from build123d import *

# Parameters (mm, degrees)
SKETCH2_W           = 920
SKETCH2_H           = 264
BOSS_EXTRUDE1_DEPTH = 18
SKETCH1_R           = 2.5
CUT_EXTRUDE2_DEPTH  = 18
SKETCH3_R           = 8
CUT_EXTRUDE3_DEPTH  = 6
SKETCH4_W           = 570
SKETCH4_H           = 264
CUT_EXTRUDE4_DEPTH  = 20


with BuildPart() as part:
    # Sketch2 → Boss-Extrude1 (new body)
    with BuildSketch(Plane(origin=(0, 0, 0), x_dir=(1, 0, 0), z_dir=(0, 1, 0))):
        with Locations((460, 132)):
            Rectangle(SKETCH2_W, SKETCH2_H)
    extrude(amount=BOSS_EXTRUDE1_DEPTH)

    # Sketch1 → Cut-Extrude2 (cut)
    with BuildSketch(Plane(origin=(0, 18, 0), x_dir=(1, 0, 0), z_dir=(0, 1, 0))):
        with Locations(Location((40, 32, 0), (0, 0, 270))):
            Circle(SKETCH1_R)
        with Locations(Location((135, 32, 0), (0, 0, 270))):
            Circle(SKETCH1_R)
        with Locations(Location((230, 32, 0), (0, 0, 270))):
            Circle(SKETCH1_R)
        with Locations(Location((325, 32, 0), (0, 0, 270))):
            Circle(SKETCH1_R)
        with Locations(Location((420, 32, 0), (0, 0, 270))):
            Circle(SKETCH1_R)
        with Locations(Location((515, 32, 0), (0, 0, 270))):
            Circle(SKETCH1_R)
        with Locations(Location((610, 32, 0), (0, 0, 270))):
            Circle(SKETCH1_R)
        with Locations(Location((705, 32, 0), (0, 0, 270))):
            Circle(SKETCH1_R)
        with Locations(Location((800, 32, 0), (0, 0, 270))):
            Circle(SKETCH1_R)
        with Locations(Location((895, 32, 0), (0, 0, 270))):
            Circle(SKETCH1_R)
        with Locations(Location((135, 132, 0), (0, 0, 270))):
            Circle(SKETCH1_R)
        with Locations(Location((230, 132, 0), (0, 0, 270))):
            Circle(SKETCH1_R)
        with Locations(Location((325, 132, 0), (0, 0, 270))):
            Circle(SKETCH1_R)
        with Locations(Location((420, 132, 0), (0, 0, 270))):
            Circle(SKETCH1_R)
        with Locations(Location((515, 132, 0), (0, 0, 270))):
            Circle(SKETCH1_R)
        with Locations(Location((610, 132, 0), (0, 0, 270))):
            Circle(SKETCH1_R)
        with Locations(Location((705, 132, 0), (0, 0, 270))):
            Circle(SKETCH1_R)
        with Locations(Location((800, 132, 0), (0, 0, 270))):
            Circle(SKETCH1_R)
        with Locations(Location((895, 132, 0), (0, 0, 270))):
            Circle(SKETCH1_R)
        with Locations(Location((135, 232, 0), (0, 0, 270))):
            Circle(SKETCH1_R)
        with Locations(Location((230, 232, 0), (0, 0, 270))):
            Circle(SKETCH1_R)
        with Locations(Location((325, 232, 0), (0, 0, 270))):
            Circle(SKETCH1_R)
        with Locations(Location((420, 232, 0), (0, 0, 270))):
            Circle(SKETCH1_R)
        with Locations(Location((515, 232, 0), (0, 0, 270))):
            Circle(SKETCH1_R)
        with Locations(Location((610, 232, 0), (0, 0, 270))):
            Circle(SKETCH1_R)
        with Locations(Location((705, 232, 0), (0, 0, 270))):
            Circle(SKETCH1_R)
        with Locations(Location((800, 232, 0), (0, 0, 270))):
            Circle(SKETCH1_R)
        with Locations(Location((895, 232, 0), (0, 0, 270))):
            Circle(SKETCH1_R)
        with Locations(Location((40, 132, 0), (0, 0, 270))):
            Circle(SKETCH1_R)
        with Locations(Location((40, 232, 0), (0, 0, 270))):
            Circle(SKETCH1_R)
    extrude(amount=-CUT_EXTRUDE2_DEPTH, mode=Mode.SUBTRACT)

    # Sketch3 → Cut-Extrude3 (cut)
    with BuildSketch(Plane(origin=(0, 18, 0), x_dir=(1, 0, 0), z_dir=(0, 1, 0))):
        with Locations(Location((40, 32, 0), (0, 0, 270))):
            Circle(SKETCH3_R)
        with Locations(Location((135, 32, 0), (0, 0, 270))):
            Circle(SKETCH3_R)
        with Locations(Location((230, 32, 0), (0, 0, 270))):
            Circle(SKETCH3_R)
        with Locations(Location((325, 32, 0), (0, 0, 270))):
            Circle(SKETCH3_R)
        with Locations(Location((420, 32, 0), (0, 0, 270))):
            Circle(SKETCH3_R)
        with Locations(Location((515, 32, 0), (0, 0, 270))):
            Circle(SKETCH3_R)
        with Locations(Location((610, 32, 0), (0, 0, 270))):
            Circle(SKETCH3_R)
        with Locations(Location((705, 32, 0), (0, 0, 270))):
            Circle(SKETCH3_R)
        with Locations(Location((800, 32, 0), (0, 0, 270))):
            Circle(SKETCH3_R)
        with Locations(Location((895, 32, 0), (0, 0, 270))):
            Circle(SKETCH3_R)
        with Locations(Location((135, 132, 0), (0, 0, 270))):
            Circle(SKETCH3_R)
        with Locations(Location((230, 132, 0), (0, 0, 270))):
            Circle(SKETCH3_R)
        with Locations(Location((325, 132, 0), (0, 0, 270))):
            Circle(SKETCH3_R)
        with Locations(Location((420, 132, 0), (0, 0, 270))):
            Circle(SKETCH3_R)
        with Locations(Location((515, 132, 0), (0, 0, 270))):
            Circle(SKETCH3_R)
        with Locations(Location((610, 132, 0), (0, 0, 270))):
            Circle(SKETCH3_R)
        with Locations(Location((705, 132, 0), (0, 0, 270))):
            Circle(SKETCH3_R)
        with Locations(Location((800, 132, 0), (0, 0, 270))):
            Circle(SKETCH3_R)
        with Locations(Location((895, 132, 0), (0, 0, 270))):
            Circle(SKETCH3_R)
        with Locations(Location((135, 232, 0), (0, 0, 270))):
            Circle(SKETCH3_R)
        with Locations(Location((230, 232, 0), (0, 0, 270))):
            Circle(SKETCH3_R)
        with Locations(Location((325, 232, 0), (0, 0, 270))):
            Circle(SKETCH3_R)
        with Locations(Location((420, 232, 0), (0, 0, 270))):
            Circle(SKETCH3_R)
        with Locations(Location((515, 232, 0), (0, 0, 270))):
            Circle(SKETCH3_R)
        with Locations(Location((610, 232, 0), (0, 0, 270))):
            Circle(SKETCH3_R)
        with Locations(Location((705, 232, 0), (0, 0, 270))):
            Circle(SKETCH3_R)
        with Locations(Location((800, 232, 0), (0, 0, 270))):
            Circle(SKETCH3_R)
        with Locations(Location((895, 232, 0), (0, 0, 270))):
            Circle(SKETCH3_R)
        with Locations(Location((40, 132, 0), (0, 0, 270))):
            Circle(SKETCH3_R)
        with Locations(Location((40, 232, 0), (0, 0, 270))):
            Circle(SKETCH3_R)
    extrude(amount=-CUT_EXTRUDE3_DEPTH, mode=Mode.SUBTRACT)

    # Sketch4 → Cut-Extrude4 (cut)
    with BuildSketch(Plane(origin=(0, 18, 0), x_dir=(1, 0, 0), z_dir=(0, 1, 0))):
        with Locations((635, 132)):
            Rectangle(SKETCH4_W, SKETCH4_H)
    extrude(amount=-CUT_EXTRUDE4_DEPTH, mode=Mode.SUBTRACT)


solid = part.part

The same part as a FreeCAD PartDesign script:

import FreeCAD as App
import Part
import Sketcher

V = App.Vector
Q = App.Units.Quantity


def add_polygon(sketch, points):
    """Adds a closed chain of lines whose ends are joined by coincident constraints."""
    first, n = sketch.GeometryCount, len(points)
    for a, b in zip(points, points[1:] + points[:1]):
        sketch.addGeometry(Part.LineSegment(App.Vector(*a, 0), App.Vector(*b, 0)), False)
    for i in range(n):
        sketch.addConstraint(Sketcher.Constraint("Coincident", first + i, 2, first + (i + 1) % n, 1))

doc = App.newDocument("Part")
body = doc.addObject("PartDesign::Body", "Body")

sketch1 = body.newObject("Sketcher::SketchObject", "Sketch")
sketch1.AttachmentSupport = (doc.getObject("XZ_Plane"), [""])
sketch1.MapMode = "FlatFace"
add_polygon(sketch1, [(0, -264), (0, 0), (920, 0), (920, -264)])
sketch1.addConstraint(Sketcher.Constraint("Vertical", 0))
sketch1.addConstraint(Sketcher.Constraint("Horizontal", 1))
sketch1.addConstraint(Sketcher.Constraint("Vertical", 2))
sketch1.addConstraint(Sketcher.Constraint("Horizontal", 3))
sketch1.addConstraint(Sketcher.Constraint("Coincident", 0, 2, -1, 1))
sketch1.addConstraint(Sketcher.Constraint("DistanceX", 1, 1, 1, 2, Q("920 mm")))
sketch1.addConstraint(Sketcher.Constraint("DistanceY", 0, 1, 0, 2, Q("264 mm")))
pad1 = body.newObject("PartDesign::Pad", "Pad")
pad1.Profile = sketch1
pad1.Length = 18
pad1.Reversed = True

sketch2 = body.newObject("Sketcher::SketchObject", "Sketch001")
sketch2.AttachmentSupport = (doc.getObject("XZ_Plane"), [""])
sketch2.MapMode = "FlatFace"
sketch2.AttachmentOffset = App.Placement(V(0, 0, -18), App.Rotation())
sketch2.addGeometry(Part.Circle(V(40, -32, 0), V(0, 0, 1), 2.5), False)
sketch2.addGeometry(Part.Circle(V(135, -32, 0), V(0, 0, 1), 2.5), False)
sketch2.addGeometry(Part.Circle(V(230, -32, 0), V(0, 0, 1), 2.5), False)
sketch2.addGeometry(Part.Circle(V(325, -32, 0), V(0, 0, 1), 2.5), False)
sketch2.addGeometry(Part.Circle(V(420, -32, 0), V(0, 0, 1), 2.5), False)
sketch2.addGeometry(Part.Circle(V(515, -32, 0), V(0, 0, 1), 2.5), False)
sketch2.addGeometry(Part.Circle(V(610, -32, 0), V(0, 0, 1), 2.5), False)
sketch2.addGeometry(Part.Circle(V(705, -32, 0), V(0, 0, 1), 2.5), False)
sketch2.addGeometry(Part.Circle(V(800, -32, 0), V(0, 0, 1), 2.5), False)
sketch2.addGeometry(Part.Circle(V(895, -32, 0), V(0, 0, 1), 2.5), False)
sketch2.addGeometry(Part.Circle(V(135, -132, 0), V(0, 0, 1), 2.5), False)
sketch2.addGeometry(Part.Circle(V(230, -132, 0), V(0, 0, 1), 2.5), False)
sketch2.addGeometry(Part.Circle(V(325, -132, 0), V(0, 0, 1), 2.5), False)
sketch2.addGeometry(Part.Circle(V(420, -132, 0), V(0, 0, 1), 2.5), False)
sketch2.addGeometry(Part.Circle(V(515, -132, 0), V(0, 0, 1), 2.5), False)
sketch2.addGeometry(Part.Circle(V(610, -132, 0), V(0, 0, 1), 2.5), False)
sketch2.addGeometry(Part.Circle(V(705, -132, 0), V(0, 0, 1), 2.5), False)
sketch2.addGeometry(Part.Circle(V(800, -132, 0), V(0, 0, 1), 2.5), False)
sketch2.addGeometry(Part.Circle(V(895, -132, 0), V(0, 0, 1), 2.5), False)
sketch2.addGeometry(Part.Circle(V(135, -232, 0), V(0, 0, 1), 2.5), False)
sketch2.addGeometry(Part.Circle(V(230, -232, 0), V(0, 0, 1), 2.5), False)
sketch2.addGeometry(Part.Circle(V(325, -232, 0), V(0, 0, 1), 2.5), False)
sketch2.addGeometry(Part.Circle(V(420, -232, 0), V(0, 0, 1), 2.5), False)
sketch2.addGeometry(Part.Circle(V(515, -232, 0), V(0, 0, 1), 2.5), False)
sketch2.addGeometry(Part.Circle(V(610, -232, 0), V(0, 0, 1), 2.5), False)
sketch2.addGeometry(Part.Circle(V(705, -232, 0), V(0, 0, 1), 2.5), False)
sketch2.addGeometry(Part.Circle(V(800, -232, 0), V(0, 0, 1), 2.5), False)
sketch2.addGeometry(Part.Circle(V(895, -232, 0), V(0, 0, 1), 2.5), False)
sketch2.addGeometry(Part.Circle(V(40, -132, 0), V(0, 0, 1), 2.5), False)
sketch2.addGeometry(Part.Circle(V(40, -232, 0), V(0, 0, 1), 2.5), False)
sketch2.addConstraint(Sketcher.Constraint("Equal", 0, 1))
sketch2.addConstraint(Sketcher.Constraint("Equal", 1, 2))
sketch2.addConstraint(Sketcher.Constraint("Equal", 2, 3))
sketch2.addConstraint(Sketcher.Constraint("Equal", 3, 4))
sketch2.addConstraint(Sketcher.Constraint("Equal", 4, 5))
sketch2.addConstraint(Sketcher.Constraint("Equal", 5, 6))
sketch2.addConstraint(Sketcher.Constraint("Equal", 6, 7))
sketch2.addConstraint(Sketcher.Constraint("Equal", 7, 8))
sketch2.addConstraint(Sketcher.Constraint("Equal", 8, 9))
sketch2.addConstraint(Sketcher.Constraint("Equal", 9, 10))
sketch2.addConstraint(Sketcher.Constraint("Equal", 10, 11))
sketch2.addConstraint(Sketcher.Constraint("Equal", 11, 12))
sketch2.addConstraint(Sketcher.Constraint("Equal", 12, 13))
sketch2.addConstraint(Sketcher.Constraint("Equal", 13, 14))
sketch2.addConstraint(Sketcher.Constraint("Equal", 14, 15))
sketch2.addConstraint(Sketcher.Constraint("Equal", 15, 16))
sketch2.addConstraint(Sketcher.Constraint("Equal", 16, 17))
sketch2.addConstraint(Sketcher.Constraint("Equal", 17, 18))
sketch2.addConstraint(Sketcher.Constraint("Equal", 18, 19))
sketch2.addConstraint(Sketcher.Constraint("Equal", 19, 20))
sketch2.addConstraint(Sketcher.Constraint("Equal", 20, 21))
sketch2.addConstraint(Sketcher.Constraint("Equal", 21, 22))
sketch2.addConstraint(Sketcher.Constraint("Equal", 22, 23))
sketch2.addConstraint(Sketcher.Constraint("Equal", 23, 24))
sketch2.addConstraint(Sketcher.Constraint("Equal", 24, 25))
sketch2.addConstraint(Sketcher.Constraint("Equal", 25, 26))
sketch2.addConstraint(Sketcher.Constraint("Equal", 26, 27))
sketch2.addConstraint(Sketcher.Constraint("Equal", 27, 28))
sketch2.addConstraint(Sketcher.Constraint("Equal", 28, 29))
sketch2.addConstraint(Sketcher.Constraint("Horizontal", 0, 3, 1, 3))
sketch2.addConstraint(Sketcher.Constraint("Horizontal", 1, 3, 2, 3))
sketch2.addConstraint(Sketcher.Constraint("Horizontal", 2, 3, 3, 3))
sketch2.addConstraint(Sketcher.Constraint("Horizontal", 3, 3, 4, 3))
sketch2.addConstraint(Sketcher.Constraint("Horizontal", 4, 3, 5, 3))
sketch2.addConstraint(Sketcher.Constraint("Horizontal", 5, 3, 6, 3))
sketch2.addConstraint(Sketcher.Constraint("Horizontal", 6, 3, 7, 3))
sketch2.addConstraint(Sketcher.Constraint("Horizontal", 7, 3, 8, 3))
sketch2.addConstraint(Sketcher.Constraint("Horizontal", 8, 3, 9, 3))
sketch2.addConstraint(Sketcher.Constraint("Horizontal", 10, 3, 11, 3))
sketch2.addConstraint(Sketcher.Constraint("Horizontal", 11, 3, 12, 3))
sketch2.addConstraint(Sketcher.Constraint("Horizontal", 12, 3, 13, 3))
sketch2.addConstraint(Sketcher.Constraint("Horizontal", 13, 3, 14, 3))
sketch2.addConstraint(Sketcher.Constraint("Horizontal", 14, 3, 15, 3))
sketch2.addConstraint(Sketcher.Constraint("Horizontal", 15, 3, 16, 3))
sketch2.addConstraint(Sketcher.Constraint("Horizontal", 16, 3, 17, 3))
sketch2.addConstraint(Sketcher.Constraint("Horizontal", 17, 3, 18, 3))
sketch2.addConstraint(Sketcher.Constraint("Horizontal", 19, 3, 20, 3))
sketch2.addConstraint(Sketcher.Constraint("Horizontal", 20, 3, 21, 3))
sketch2.addConstraint(Sketcher.Constraint("Horizontal", 21, 3, 22, 3))
sketch2.addConstraint(Sketcher.Constraint("Horizontal", 22, 3, 23, 3))
sketch2.addConstraint(Sketcher.Constraint("Horizontal", 23, 3, 24, 3))
sketch2.addConstraint(Sketcher.Constraint("Horizontal", 24, 3, 25, 3))
sketch2.addConstraint(Sketcher.Constraint("Horizontal", 25, 3, 26, 3))
sketch2.addConstraint(Sketcher.Constraint("Horizontal", 26, 3, 27, 3))
sketch2.addConstraint(Sketcher.Constraint("Horizontal", 18, 3, 28, 3))
sketch2.addConstraint(Sketcher.Constraint("Horizontal", 27, 3, 29, 3))
sketch2.addConstraint(Sketcher.Constraint("Vertical", 1, 3, 10, 3))
sketch2.addConstraint(Sketcher.Constraint("Vertical", 2, 3, 11, 3))
sketch2.addConstraint(Sketcher.Constraint("Vertical", 3, 3, 12, 3))
sketch2.addConstraint(Sketcher.Constraint("Vertical", 4, 3, 13, 3))
sketch2.addConstraint(Sketcher.Constraint("Vertical", 5, 3, 14, 3))
sketch2.addConstraint(Sketcher.Constraint("Vertical", 6, 3, 15, 3))
sketch2.addConstraint(Sketcher.Constraint("Vertical", 7, 3, 16, 3))
sketch2.addConstraint(Sketcher.Constraint("Vertical", 8, 3, 17, 3))
sketch2.addConstraint(Sketcher.Constraint("Vertical", 9, 3, 18, 3))
sketch2.addConstraint(Sketcher.Constraint("Vertical", 10, 3, 19, 3))
sketch2.addConstraint(Sketcher.Constraint("Vertical", 11, 3, 20, 3))
sketch2.addConstraint(Sketcher.Constraint("Vertical", 12, 3, 21, 3))
sketch2.addConstraint(Sketcher.Constraint("Vertical", 13, 3, 22, 3))
sketch2.addConstraint(Sketcher.Constraint("Vertical", 14, 3, 23, 3))
sketch2.addConstraint(Sketcher.Constraint("Vertical", 15, 3, 24, 3))
sketch2.addConstraint(Sketcher.Constraint("Vertical", 16, 3, 25, 3))
sketch2.addConstraint(Sketcher.Constraint("Vertical", 17, 3, 26, 3))
sketch2.addConstraint(Sketcher.Constraint("Vertical", 18, 3, 27, 3))
sketch2.addConstraint(Sketcher.Constraint("Vertical", 0, 3, 28, 3))
sketch2.addConstraint(Sketcher.Constraint("Vertical", 28, 3, 29, 3))
sketch2.addConstraint(Sketcher.Constraint("Diameter", 0, Q("5 mm")))
sketch2.addConstraint(Sketcher.Constraint("DistanceX", -1, 1, 0, 3, Q("40 mm")))
sketch2.addConstraint(Sketcher.Constraint("DistanceY", 0, 3, -1, 1, Q("32 mm")))
sketch2.addConstraint(Sketcher.Constraint("DistanceX", -1, 1, 1, 3, Q("135 mm")))
sketch2.addConstraint(Sketcher.Constraint("DistanceX", -1, 1, 2, 3, Q("230 mm")))
sketch2.addConstraint(Sketcher.Constraint("DistanceX", -1, 1, 3, 3, Q("325 mm")))
sketch2.addConstraint(Sketcher.Constraint("DistanceX", -1, 1, 4, 3, Q("420 mm")))
sketch2.addConstraint(Sketcher.Constraint("DistanceX", -1, 1, 5, 3, Q("515 mm")))
sketch2.addConstraint(Sketcher.Constraint("DistanceX", -1, 1, 6, 3, Q("610 mm")))
sketch2.addConstraint(Sketcher.Constraint("DistanceX", -1, 1, 7, 3, Q("705 mm")))
sketch2.addConstraint(Sketcher.Constraint("DistanceX", -1, 1, 8, 3, Q("800 mm")))
sketch2.addConstraint(Sketcher.Constraint("DistanceX", -1, 1, 9, 3, Q("895 mm")))
sketch2.addConstraint(Sketcher.Constraint("DistanceY", 10, 3, -1, 1, Q("132 mm")))
sketch2.addConstraint(Sketcher.Constraint("DistanceY", 19, 3, -1, 1, Q("232 mm")))
pocket1 = body.newObject("PartDesign::Pocket", "Pocket")
pocket1.Profile = sketch2
pocket1.Length = 18
pocket1.Reversed = True

sketch3 = body.newObject("Sketcher::SketchObject", "Sketch002")
sketch3.AttachmentSupport = (doc.getObject("XZ_Plane"), [""])
sketch3.MapMode = "FlatFace"
sketch3.AttachmentOffset = App.Placement(V(0, 0, -18), App.Rotation())
sketch3.addGeometry(Part.Circle(V(40, -32, 0), V(0, 0, 1), 8), False)
sketch3.addGeometry(Part.Circle(V(135, -32, 0), V(0, 0, 1), 8), False)
sketch3.addGeometry(Part.Circle(V(230, -32, 0), V(0, 0, 1), 8), False)
sketch3.addGeometry(Part.Circle(V(325, -32, 0), V(0, 0, 1), 8), False)
sketch3.addGeometry(Part.Circle(V(420, -32, 0), V(0, 0, 1), 8), False)
sketch3.addGeometry(Part.Circle(V(515, -32, 0), V(0, 0, 1), 8), False)
sketch3.addGeometry(Part.Circle(V(610, -32, 0), V(0, 0, 1), 8), False)
sketch3.addGeometry(Part.Circle(V(705, -32, 0), V(0, 0, 1), 8), False)
sketch3.addGeometry(Part.Circle(V(800, -32, 0), V(0, 0, 1), 8), False)
sketch3.addGeometry(Part.Circle(V(895, -32, 0), V(0, 0, 1), 8), False)
sketch3.addGeometry(Part.Circle(V(135, -132, 0), V(0, 0, 1), 8), False)
sketch3.addGeometry(Part.Circle(V(230, -132, 0), V(0, 0, 1), 8), False)
sketch3.addGeometry(Part.Circle(V(325, -132, 0), V(0, 0, 1), 8), False)
sketch3.addGeometry(Part.Circle(V(420, -132, 0), V(0, 0, 1), 8), False)
sketch3.addGeometry(Part.Circle(V(515, -132, 0), V(0, 0, 1), 8), False)
sketch3.addGeometry(Part.Circle(V(610, -132, 0), V(0, 0, 1), 8), False)
sketch3.addGeometry(Part.Circle(V(705, -132, 0), V(0, 0, 1), 8), False)
sketch3.addGeometry(Part.Circle(V(800, -132, 0), V(0, 0, 1), 8), False)
sketch3.addGeometry(Part.Circle(V(895, -132, 0), V(0, 0, 1), 8), False)
sketch3.addGeometry(Part.Circle(V(135, -232, 0), V(0, 0, 1), 8), False)
sketch3.addGeometry(Part.Circle(V(230, -232, 0), V(0, 0, 1), 8), False)
sketch3.addGeometry(Part.Circle(V(325, -232, 0), V(0, 0, 1), 8), False)
sketch3.addGeometry(Part.Circle(V(420, -232, 0), V(0, 0, 1), 8), False)
sketch3.addGeometry(Part.Circle(V(515, -232, 0), V(0, 0, 1), 8), False)
sketch3.addGeometry(Part.Circle(V(610, -232, 0), V(0, 0, 1), 8), False)
sketch3.addGeometry(Part.Circle(V(705, -232, 0), V(0, 0, 1), 8), False)
sketch3.addGeometry(Part.Circle(V(800, -232, 0), V(0, 0, 1), 8), False)
sketch3.addGeometry(Part.Circle(V(895, -232, 0), V(0, 0, 1), 8), False)
sketch3.addGeometry(Part.Circle(V(40, -132, 0), V(0, 0, 1), 8), False)
sketch3.addGeometry(Part.Circle(V(40, -232, 0), V(0, 0, 1), 8), False)
sketch3.addConstraint(Sketcher.Constraint("Equal", 0, 1))
sketch3.addConstraint(Sketcher.Constraint("Equal", 1, 2))
sketch3.addConstraint(Sketcher.Constraint("Equal", 2, 3))
sketch3.addConstraint(Sketcher.Constraint("Equal", 3, 4))
sketch3.addConstraint(Sketcher.Constraint("Equal", 4, 5))
sketch3.addConstraint(Sketcher.Constraint("Equal", 5, 6))
sketch3.addConstraint(Sketcher.Constraint("Equal", 6, 7))
sketch3.addConstraint(Sketcher.Constraint("Equal", 7, 8))
sketch3.addConstraint(Sketcher.Constraint("Equal", 8, 9))
sketch3.addConstraint(Sketcher.Constraint("Equal", 9, 10))
sketch3.addConstraint(Sketcher.Constraint("Equal", 10, 11))
sketch3.addConstraint(Sketcher.Constraint("Equal", 11, 12))
sketch3.addConstraint(Sketcher.Constraint("Equal", 12, 13))
sketch3.addConstraint(Sketcher.Constraint("Equal", 13, 14))
sketch3.addConstraint(Sketcher.Constraint("Equal", 14, 15))
sketch3.addConstraint(Sketcher.Constraint("Equal", 15, 16))
sketch3.addConstraint(Sketcher.Constraint("Equal", 16, 17))
sketch3.addConstraint(Sketcher.Constraint("Equal", 17, 18))
sketch3.addConstraint(Sketcher.Constraint("Equal", 18, 19))
sketch3.addConstraint(Sketcher.Constraint("Equal", 19, 20))
sketch3.addConstraint(Sketcher.Constraint("Equal", 20, 21))
sketch3.addConstraint(Sketcher.Constraint("Equal", 21, 22))
sketch3.addConstraint(Sketcher.Constraint("Equal", 22, 23))
sketch3.addConstraint(Sketcher.Constraint("Equal", 23, 24))
sketch3.addConstraint(Sketcher.Constraint("Equal", 24, 25))
sketch3.addConstraint(Sketcher.Constraint("Equal", 25, 26))
sketch3.addConstraint(Sketcher.Constraint("Equal", 26, 27))
sketch3.addConstraint(Sketcher.Constraint("Equal", 27, 28))
sketch3.addConstraint(Sketcher.Constraint("Equal", 28, 29))
sketch3.addConstraint(Sketcher.Constraint("Horizontal", 0, 3, 1, 3))
sketch3.addConstraint(Sketcher.Constraint("Horizontal", 1, 3, 2, 3))
sketch3.addConstraint(Sketcher.Constraint("Horizontal", 2, 3, 3, 3))
sketch3.addConstraint(Sketcher.Constraint("Horizontal", 3, 3, 4, 3))
sketch3.addConstraint(Sketcher.Constraint("Horizontal", 4, 3, 5, 3))
sketch3.addConstraint(Sketcher.Constraint("Horizontal", 5, 3, 6, 3))
sketch3.addConstraint(Sketcher.Constraint("Horizontal", 6, 3, 7, 3))
sketch3.addConstraint(Sketcher.Constraint("Horizontal", 7, 3, 8, 3))
sketch3.addConstraint(Sketcher.Constraint("Horizontal", 8, 3, 9, 3))
sketch3.addConstraint(Sketcher.Constraint("Horizontal", 10, 3, 11, 3))
sketch3.addConstraint(Sketcher.Constraint("Horizontal", 11, 3, 12, 3))
sketch3.addConstraint(Sketcher.Constraint("Horizontal", 12, 3, 13, 3))
sketch3.addConstraint(Sketcher.Constraint("Horizontal", 13, 3, 14, 3))
sketch3.addConstraint(Sketcher.Constraint("Horizontal", 14, 3, 15, 3))
sketch3.addConstraint(Sketcher.Constraint("Horizontal", 15, 3, 16, 3))
sketch3.addConstraint(Sketcher.Constraint("Horizontal", 16, 3, 17, 3))
sketch3.addConstraint(Sketcher.Constraint("Horizontal", 17, 3, 18, 3))
sketch3.addConstraint(Sketcher.Constraint("Horizontal", 19, 3, 20, 3))
sketch3.addConstraint(Sketcher.Constraint("Horizontal", 20, 3, 21, 3))
sketch3.addConstraint(Sketcher.Constraint("Horizontal", 21, 3, 22, 3))
sketch3.addConstraint(Sketcher.Constraint("Horizontal", 22, 3, 23, 3))
sketch3.addConstraint(Sketcher.Constraint("Horizontal", 23, 3, 24, 3))
sketch3.addConstraint(Sketcher.Constraint("Horizontal", 24, 3, 25, 3))
sketch3.addConstraint(Sketcher.Constraint("Horizontal", 25, 3, 26, 3))
sketch3.addConstraint(Sketcher.Constraint("Horizontal", 26, 3, 27, 3))
sketch3.addConstraint(Sketcher.Constraint("Horizontal", 18, 3, 28, 3))
sketch3.addConstraint(Sketcher.Constraint("Horizontal", 27, 3, 29, 3))
sketch3.addConstraint(Sketcher.Constraint("Vertical", 1, 3, 10, 3))
sketch3.addConstraint(Sketcher.Constraint("Vertical", 2, 3, 11, 3))
sketch3.addConstraint(Sketcher.Constraint("Vertical", 3, 3, 12, 3))
sketch3.addConstraint(Sketcher.Constraint("Vertical", 4, 3, 13, 3))
sketch3.addConstraint(Sketcher.Constraint("Vertical", 5, 3, 14, 3))
sketch3.addConstraint(Sketcher.Constraint("Vertical", 6, 3, 15, 3))
sketch3.addConstraint(Sketcher.Constraint("Vertical", 7, 3, 16, 3))
sketch3.addConstraint(Sketcher.Constraint("Vertical", 8, 3, 17, 3))
sketch3.addConstraint(Sketcher.Constraint("Vertical", 9, 3, 18, 3))
sketch3.addConstraint(Sketcher.Constraint("Vertical", 10, 3, 19, 3))
sketch3.addConstraint(Sketcher.Constraint("Vertical", 11, 3, 20, 3))
sketch3.addConstraint(Sketcher.Constraint("Vertical", 12, 3, 21, 3))
sketch3.addConstraint(Sketcher.Constraint("Vertical", 13, 3, 22, 3))
sketch3.addConstraint(Sketcher.Constraint("Vertical", 14, 3, 23, 3))
sketch3.addConstraint(Sketcher.Constraint("Vertical", 15, 3, 24, 3))
sketch3.addConstraint(Sketcher.Constraint("Vertical", 16, 3, 25, 3))
sketch3.addConstraint(Sketcher.Constraint("Vertical", 17, 3, 26, 3))
sketch3.addConstraint(Sketcher.Constraint("Vertical", 18, 3, 27, 3))
sketch3.addConstraint(Sketcher.Constraint("Vertical", 0, 3, 28, 3))
sketch3.addConstraint(Sketcher.Constraint("Vertical", 28, 3, 29, 3))
sketch3.addConstraint(Sketcher.Constraint("Diameter", 0, Q("16 mm")))
sketch3.addConstraint(Sketcher.Constraint("DistanceX", -1, 1, 0, 3, Q("40 mm")))
sketch3.addConstraint(Sketcher.Constraint("DistanceY", 0, 3, -1, 1, Q("32 mm")))
sketch3.addConstraint(Sketcher.Constraint("DistanceX", -1, 1, 1, 3, Q("135 mm")))
sketch3.addConstraint(Sketcher.Constraint("DistanceX", -1, 1, 2, 3, Q("230 mm")))
sketch3.addConstraint(Sketcher.Constraint("DistanceX", -1, 1, 3, 3, Q("325 mm")))
sketch3.addConstraint(Sketcher.Constraint("DistanceX", -1, 1, 4, 3, Q("420 mm")))
sketch3.addConstraint(Sketcher.Constraint("DistanceX", -1, 1, 5, 3, Q("515 mm")))
sketch3.addConstraint(Sketcher.Constraint("DistanceX", -1, 1, 6, 3, Q("610 mm")))
sketch3.addConstraint(Sketcher.Constraint("DistanceX", -1, 1, 7, 3, Q("705 mm")))
sketch3.addConstraint(Sketcher.Constraint("DistanceX", -1, 1, 8, 3, Q("800 mm")))
sketch3.addConstraint(Sketcher.Constraint("DistanceX", -1, 1, 9, 3, Q("895 mm")))
sketch3.addConstraint(Sketcher.Constraint("DistanceY", 10, 3, -1, 1, Q("132 mm")))
sketch3.addConstraint(Sketcher.Constraint("DistanceY", 19, 3, -1, 1, Q("232 mm")))
pocket2 = body.newObject("PartDesign::Pocket", "Pocket001")
pocket2.Profile = sketch3
pocket2.Length = 6
pocket2.Reversed = True

sketch4 = body.newObject("Sketcher::SketchObject", "Sketch003")
sketch4.AttachmentSupport = (doc.getObject("XZ_Plane"), [""])
sketch4.MapMode = "FlatFace"
sketch4.AttachmentOffset = App.Placement(V(0, 0, -18), App.Rotation())
add_polygon(sketch4, [(350, -264), (350, 0), (920, 0), (920, -264)])
sketch4.addConstraint(Sketcher.Constraint("Vertical", 0))
sketch4.addConstraint(Sketcher.Constraint("Horizontal", 1))
sketch4.addConstraint(Sketcher.Constraint("Vertical", 2))
sketch4.addConstraint(Sketcher.Constraint("Horizontal", 3))
sketch4.addConstraint(Sketcher.Constraint("PointOnObject", 0, 2, -1))
sketch4.addConstraint(Sketcher.Constraint("DistanceX", 1, 1, 1, 2, Q("570 mm")))
sketch4.addConstraint(Sketcher.Constraint("DistanceY", 0, 1, 0, 2, Q("264 mm")))
sketch4.addConstraint(Sketcher.Constraint("DistanceX", -1, 1, 0, 2, Q("350 mm")))
pocket3 = body.newObject("PartDesign::Pocket", "Pocket002")
pocket3.Profile = sketch4
pocket3.Length = 20
pocket3.Reversed = True

doc.recompute()
